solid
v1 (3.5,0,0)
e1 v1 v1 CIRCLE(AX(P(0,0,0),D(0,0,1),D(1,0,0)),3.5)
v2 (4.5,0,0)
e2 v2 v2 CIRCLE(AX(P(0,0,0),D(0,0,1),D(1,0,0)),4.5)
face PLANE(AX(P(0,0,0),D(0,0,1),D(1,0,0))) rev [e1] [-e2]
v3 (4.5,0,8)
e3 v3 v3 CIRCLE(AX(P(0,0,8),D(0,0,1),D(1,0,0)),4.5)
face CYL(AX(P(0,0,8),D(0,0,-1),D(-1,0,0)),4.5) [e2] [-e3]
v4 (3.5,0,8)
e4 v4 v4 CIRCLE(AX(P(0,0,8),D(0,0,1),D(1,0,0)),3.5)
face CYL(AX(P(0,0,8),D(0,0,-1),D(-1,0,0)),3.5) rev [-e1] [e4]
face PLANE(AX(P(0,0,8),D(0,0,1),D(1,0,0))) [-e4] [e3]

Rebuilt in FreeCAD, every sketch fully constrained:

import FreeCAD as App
import Part
import Sketcher

V = App.Vector
Q = App.Units.Quantity

doc = App.newDocument("Part")
body = doc.addObject("PartDesign::Body", "Body")

# Sketch on XY plane
sketch1 = body.newObject("Sketcher::SketchObject", "Sketch")
sketch1.AttachmentSupport = (doc.getObject("XY_Plane"), [""])
sketch1.MapMode = "FlatFace"
sketch1.addGeometry(Part.Circle(V(0, 0, 0), V(0, 0, 1), 4.5), False)
sketch1.addGeometry(Part.Circle(V(0, 0, 0), V(0, 0, 1), 3.5), False)
sketch1.addConstraint(Sketcher.Constraint("Coincident", 0, 3, -1, 1))
sketch1.addConstraint(Sketcher.Constraint("Coincident", 1, 3, -1, 1))
sketch1.addConstraint(Sketcher.Constraint("Diameter", 0, Q("9 mm")))
sketch1.addConstraint(Sketcher.Constraint("Diameter", 1, Q("7 mm")))
pad1 = body.newObject("PartDesign::Pad", "Pad")
pad1.Profile = sketch1
pad1.Length = 8

doc.recompute()
